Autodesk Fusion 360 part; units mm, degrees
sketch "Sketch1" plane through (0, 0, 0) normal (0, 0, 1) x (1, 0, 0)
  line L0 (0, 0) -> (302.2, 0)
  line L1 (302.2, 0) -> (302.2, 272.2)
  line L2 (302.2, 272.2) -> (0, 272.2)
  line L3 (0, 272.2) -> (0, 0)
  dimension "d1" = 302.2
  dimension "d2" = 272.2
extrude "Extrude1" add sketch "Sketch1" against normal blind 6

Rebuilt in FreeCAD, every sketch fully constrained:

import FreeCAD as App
import Part
import Sketcher

V = App.Vector
Q = App.Units.Quantity

doc = App.newDocument("Part")
params = doc.addObject("Spreadsheet::Sheet", "Params")
for row, (alias, value) in enumerate([
    ("sketch1_width", "302.2 mm"),
    ("sketch1_height", "272.2 mm"),
    ("pad1_length", "6 mm"),
], start=1):
    params.set(f"A{row}", alias)
    params.set(f"B{row}", "=" + value)
    params.setAlias(f"B{row}", alias)

body = doc.addObject("PartDesign::Body", "Body")

# Sketch on XY plane
sketch1 = body.newObject("Sketcher::SketchObject", "Sketch")
sketch1.AttachmentSupport = (doc.getObject("XY_Plane"), [""])
sketch1.MapMode = "FlatFace"
sketch1.addGeometry([
    Part.LineSegment(V(0, 272, 0), V(0, 0, 0)),
    Part.LineSegment(V(0, 0, 0), V(302, 0, 0)),
    Part.LineSegment(V(302, 0, 0), V(302, 272, 0)),
    Part.LineSegment(V(302, 272, 0), V(0, 272, 0)),
], False)
sketch1.addConstraint([
    Sketcher.Constraint("Coincident", 0, 2, 1, 1),
    Sketcher.Constraint("Coincident", 1, 2, 2, 1),
    Sketcher.Constraint("Coincident", 2, 2, 3, 1),
    Sketcher.Constraint("Coincident", 3, 2, 0, 1),
    Sketcher.Constraint("Vertical", 0),
    Sketcher.Constraint("Horizontal", 1),
    Sketcher.Constraint("Vertical", 2),
    Sketcher.Constraint("Horizontal", 3),
    Sketcher.Constraint("Coincident", 0, 2, -1, 1),
    Sketcher.Constraint("DistanceX", 1, 1, 1, 2, Q("302.2 mm")),
    Sketcher.Constraint("DistanceY", 0, 2, 0, 1, Q("272.2 mm")),
])
sketch1.setExpression("Constraints[9]", "Params.sketch1_width")
sketch1.setExpression("Constraints[10]", "Params.sketch1_height")
pad1 = body.newObject("PartDesign::Pad", "Pad")
pad1.Profile = sketch1
pad1.setExpression("Length", "Params.pad1_length")
pad1.Reversed = True

doc.recompute()
